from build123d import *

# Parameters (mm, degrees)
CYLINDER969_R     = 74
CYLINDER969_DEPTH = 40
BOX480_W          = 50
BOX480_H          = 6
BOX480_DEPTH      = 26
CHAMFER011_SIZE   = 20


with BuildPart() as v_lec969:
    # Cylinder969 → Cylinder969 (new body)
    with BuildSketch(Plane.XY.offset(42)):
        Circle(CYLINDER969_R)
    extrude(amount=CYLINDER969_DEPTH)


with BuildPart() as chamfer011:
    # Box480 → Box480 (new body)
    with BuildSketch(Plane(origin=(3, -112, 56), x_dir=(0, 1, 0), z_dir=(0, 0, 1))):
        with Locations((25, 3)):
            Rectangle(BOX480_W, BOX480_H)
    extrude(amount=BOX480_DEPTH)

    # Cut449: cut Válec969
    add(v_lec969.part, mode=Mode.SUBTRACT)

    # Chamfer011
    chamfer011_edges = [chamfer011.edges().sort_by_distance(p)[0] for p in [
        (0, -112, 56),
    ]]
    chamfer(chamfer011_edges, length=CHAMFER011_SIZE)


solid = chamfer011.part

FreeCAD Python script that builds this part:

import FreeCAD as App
import Part
import Sketcher


def edges_at(feature, points):
    """Names of the edges that pass closest to the given points."""
    edges = feature.Shape.Edges
    near = lambda p: min(range(len(edges)), key=lambda i: edges[i].distToShape(Part.Vertex(*p))[0])
    return sorted({f"Edge{near(p) + 1}" for p in points})

doc = App.newDocument("Part")
body = doc.addObject("PartDesign::Body", "Body")

# Sketch on XY plane
sketch1 = body.newObject("Sketcher::SketchObject", "Sketch")
sketch1.AttachmentSupport = (doc.getObject("XY_Plane"), [""])
sketch1.MapMode = "FlatFace"
sketch1.AttachmentOffset = App.Placement(App.Vector(0, 0, 42), App.Rotation())
sketch1.addGeometry(Part.Circle(App.Vector(0, 0, 0), App.Vector(0, 0, 1), 74), False)
sketch1.addConstraint(Sketcher.Constraint("Coincident", 0, 3, -1, 1))
sketch1.addConstraint(Sketcher.Constraint("Diameter", 0, 148.0))
pad1 = body.newObject("PartDesign::Pad", "Pad")
pad1.Profile = sketch1
pad1.Length = 40
body2 = doc.addObject("PartDesign::Body", "Body001")

# Sketch on XY plane
sketch2 = body2.newObject("Sketcher::SketchObject", "Sketch001")
sketch2.AttachmentSupport = (doc.getObject("XY_Plane001"), [""])
sketch2.MapMode = "FlatFace"
sketch2.AttachmentOffset = App.Placement(App.Vector(0, 0, 56), App.Rotation())
sketch2.addGeometry(Part.LineSegment(App.Vector(-3, -112, 0), App.Vector(3, -112, 0)), False)
sketch2.addGeometry(Part.LineSegment(App.Vector(3, -112, 0), App.Vector(3, -62, 0)), False)
sketch2.addGeometry(Part.LineSegment(App.Vector(3, -62, 0), App.Vector(-3, -62, 0)), False)
sketch2.addGeometry(Part.LineSegment(App.Vector(-3, -62, 0), App.Vector(-3, -112, 0)), False)
sketch2.addConstraint(Sketcher.Constraint("Coincident", 0, 2, 1, 1))
sketch2.addConstraint(Sketcher.Constraint("Coincident", 1, 2, 2, 1))
sketch2.addConstraint(Sketcher.Constraint("Coincident", 2, 2, 3, 1))
sketch2.addConstraint(Sketcher.Constraint("Coincident", 3, 2, 0, 1))
sketch2.addConstraint(Sketcher.Constraint("Horizontal", 0))
sketch2.addConstraint(Sketcher.Constraint("Vertical", 1))
sketch2.addConstraint(Sketcher.Constraint("Horizontal", 2))
sketch2.addConstraint(Sketcher.Constraint("Vertical", 3))
sketch2.addConstraint(Sketcher.Constraint("DistanceX", 0, 1, 0, 2, 6.0))
sketch2.addConstraint(Sketcher.Constraint("DistanceY", 1, 1, 1, 2, 50.0))
sketch2.addConstraint(Sketcher.Constraint("DistanceX", -1, 1, 0, 2, 3.0))
sketch2.addConstraint(Sketcher.Constraint("DistanceY", 0, 2, -1, 1, 112.0))
pad2 = body2.newObject("PartDesign::Pad", "Pad001")
pad2.Profile = sketch2
pad2.Length = 26
doc.recompute()

boolean = body2.newObject("PartDesign::Boolean", "Boolean")
boolean.Type = "Cut"
boolean.addObjects([body])
doc.recompute()

chamfer = body2.newObject("PartDesign::Chamfer", "Chamfer")
chamfer.Base = (boolean, edges_at(boolean, [(0, -112, 56)]))
chamfer.Size = 20

doc.recompute()
